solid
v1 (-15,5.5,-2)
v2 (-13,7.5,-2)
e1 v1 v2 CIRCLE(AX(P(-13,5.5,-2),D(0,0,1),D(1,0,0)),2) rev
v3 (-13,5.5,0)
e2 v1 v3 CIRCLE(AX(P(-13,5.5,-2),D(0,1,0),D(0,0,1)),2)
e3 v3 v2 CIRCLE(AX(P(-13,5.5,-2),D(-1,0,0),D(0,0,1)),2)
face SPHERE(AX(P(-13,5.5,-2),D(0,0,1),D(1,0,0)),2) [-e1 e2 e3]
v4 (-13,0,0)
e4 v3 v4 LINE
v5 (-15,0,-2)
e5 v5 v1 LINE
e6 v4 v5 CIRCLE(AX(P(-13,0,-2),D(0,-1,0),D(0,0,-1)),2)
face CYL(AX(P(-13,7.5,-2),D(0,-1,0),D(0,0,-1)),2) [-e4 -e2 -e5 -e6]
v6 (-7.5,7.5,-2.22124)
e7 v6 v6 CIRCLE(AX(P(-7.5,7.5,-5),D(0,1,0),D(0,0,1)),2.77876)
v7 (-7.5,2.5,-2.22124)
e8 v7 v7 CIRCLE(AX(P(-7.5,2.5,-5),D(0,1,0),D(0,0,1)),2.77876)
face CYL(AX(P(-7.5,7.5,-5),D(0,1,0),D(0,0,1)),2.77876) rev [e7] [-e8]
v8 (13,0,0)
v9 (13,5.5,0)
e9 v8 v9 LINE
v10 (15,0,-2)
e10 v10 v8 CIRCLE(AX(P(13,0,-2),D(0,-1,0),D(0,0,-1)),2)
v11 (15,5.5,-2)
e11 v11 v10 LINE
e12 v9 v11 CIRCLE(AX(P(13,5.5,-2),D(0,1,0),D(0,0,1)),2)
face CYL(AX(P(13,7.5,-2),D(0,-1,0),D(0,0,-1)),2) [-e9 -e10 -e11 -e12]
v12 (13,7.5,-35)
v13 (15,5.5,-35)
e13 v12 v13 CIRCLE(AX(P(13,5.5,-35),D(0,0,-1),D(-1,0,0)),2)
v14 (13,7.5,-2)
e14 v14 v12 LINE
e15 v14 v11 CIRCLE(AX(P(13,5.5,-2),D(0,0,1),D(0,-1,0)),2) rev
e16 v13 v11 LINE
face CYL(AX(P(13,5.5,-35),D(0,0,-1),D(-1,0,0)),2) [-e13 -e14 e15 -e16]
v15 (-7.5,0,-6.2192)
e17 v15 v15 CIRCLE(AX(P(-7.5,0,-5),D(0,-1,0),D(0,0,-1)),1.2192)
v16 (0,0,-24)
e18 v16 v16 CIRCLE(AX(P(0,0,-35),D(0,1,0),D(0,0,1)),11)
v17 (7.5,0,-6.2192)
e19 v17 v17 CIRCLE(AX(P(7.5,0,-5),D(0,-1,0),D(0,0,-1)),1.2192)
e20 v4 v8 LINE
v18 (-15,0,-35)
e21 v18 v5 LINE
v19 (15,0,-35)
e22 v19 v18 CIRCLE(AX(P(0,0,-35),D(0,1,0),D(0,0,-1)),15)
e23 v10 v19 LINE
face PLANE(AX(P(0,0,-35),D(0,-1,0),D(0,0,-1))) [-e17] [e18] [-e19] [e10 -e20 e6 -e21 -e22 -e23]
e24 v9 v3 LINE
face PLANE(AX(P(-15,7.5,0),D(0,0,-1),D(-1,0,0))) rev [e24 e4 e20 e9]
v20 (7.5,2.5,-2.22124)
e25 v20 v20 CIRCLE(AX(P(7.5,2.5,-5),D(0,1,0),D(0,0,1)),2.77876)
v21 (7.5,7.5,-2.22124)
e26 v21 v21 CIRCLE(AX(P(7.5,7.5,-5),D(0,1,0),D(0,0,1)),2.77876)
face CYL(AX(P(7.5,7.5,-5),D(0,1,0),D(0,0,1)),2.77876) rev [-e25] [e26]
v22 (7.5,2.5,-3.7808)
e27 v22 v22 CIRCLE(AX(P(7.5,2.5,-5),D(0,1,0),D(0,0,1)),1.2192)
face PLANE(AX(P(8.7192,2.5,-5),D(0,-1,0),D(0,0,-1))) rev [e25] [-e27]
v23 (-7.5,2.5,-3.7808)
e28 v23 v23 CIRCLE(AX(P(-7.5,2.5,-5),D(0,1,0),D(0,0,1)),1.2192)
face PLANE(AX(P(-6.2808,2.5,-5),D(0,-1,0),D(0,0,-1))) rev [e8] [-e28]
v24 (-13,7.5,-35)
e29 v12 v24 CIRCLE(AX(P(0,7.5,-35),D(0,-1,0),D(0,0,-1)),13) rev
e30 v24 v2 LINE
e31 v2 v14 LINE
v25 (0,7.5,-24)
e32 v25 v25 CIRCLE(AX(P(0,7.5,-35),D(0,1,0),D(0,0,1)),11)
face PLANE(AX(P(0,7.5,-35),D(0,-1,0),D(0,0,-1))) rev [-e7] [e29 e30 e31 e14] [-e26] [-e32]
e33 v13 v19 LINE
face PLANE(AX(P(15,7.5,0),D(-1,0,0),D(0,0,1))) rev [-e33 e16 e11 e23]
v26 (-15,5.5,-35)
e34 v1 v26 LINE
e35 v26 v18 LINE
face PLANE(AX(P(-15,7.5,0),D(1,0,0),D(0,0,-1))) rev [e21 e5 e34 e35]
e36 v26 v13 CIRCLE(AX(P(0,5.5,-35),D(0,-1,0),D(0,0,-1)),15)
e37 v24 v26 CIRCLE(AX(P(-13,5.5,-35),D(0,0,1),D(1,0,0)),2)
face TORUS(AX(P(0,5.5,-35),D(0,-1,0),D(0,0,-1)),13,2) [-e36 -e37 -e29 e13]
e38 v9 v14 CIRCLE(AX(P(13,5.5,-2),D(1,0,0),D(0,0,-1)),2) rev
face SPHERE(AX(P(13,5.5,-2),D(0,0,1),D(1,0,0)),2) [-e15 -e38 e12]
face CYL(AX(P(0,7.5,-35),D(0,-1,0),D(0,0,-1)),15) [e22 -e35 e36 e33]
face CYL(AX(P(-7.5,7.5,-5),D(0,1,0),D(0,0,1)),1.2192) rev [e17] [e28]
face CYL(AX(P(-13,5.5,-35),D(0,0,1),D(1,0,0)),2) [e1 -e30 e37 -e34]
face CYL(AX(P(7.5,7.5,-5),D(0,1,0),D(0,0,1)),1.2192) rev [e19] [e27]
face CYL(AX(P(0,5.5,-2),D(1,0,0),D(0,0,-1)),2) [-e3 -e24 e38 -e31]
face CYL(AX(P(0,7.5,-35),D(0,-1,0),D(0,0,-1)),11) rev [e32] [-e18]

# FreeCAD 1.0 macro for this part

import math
import FreeCAD as App
import Part
import Sketcher


def edges_at(feature, points):
    """Names of the edges that pass closest to the given points."""
    edges = feature.Shape.Edges
    near = lambda p: min(range(len(edges)), key=lambda i: edges[i].distToShape(Part.Vertex(*p))[0])
    return sorted({f"Edge{near(p) + 1}" for p in points})

doc = App.newDocument("Part")
body = doc.addObject("PartDesign::Body", "Body")

# Sketch on XZ plane
sketch1 = body.newObject("Sketcher::SketchObject", "Sketch")
sketch1.AttachmentSupport = (doc.getObject("XZ_Plane"), [""])
sketch1.MapMode = "FlatFace"
sketch1.addGeometry([
    Part.LineSegment(App.Vector(-15, 0, 0), App.Vector(15, 0, 0)),  # 0
    Part.LineSegment(App.Vector(15, 0, 0), App.Vector(15, -35, 0)),  # 1
    Part.ArcOfCircle(Part.Circle(App.Vector(0, -35, 0), App.Vector(0, 0, 1), 15), math.radians(180), math.radians(360)),  # 2
    Part.LineSegment(App.Vector(-15, -35, 0), App.Vector(-15, 0, 0)),  # 3
    Part.Circle(App.Vector(0, -35, 0), App.Vector(0, 0, 1), 11),  # 4
], False)
sketch1.addConstraint([
    Sketcher.Constraint("Coincident", 0, 2, 1, 1),
    Sketcher.Constraint("Tangent", 1, 2, 2, 2),
    Sketcher.Constraint("Tangent", 2, 1, 3, 1),
    Sketcher.Constraint("Coincident", 3, 2, 0, 1),
    Sketcher.Constraint("Horizontal", 0),
    Sketcher.Constraint("Vertical", 1),
    Sketcher.Constraint("Vertical", 3),
    Sketcher.Constraint("Coincident", 4, 3, 2, 3),
    Sketcher.Constraint("Symmetric", 0, 2, 3, 2, -1, 1),
    Sketcher.Constraint("Diameter", 4, 22.0),
    Sketcher.Constraint("Radius", 2, 15.0),
    Sketcher.Constraint("DistanceY", 1, 2, 1, 1, 35.0),
])
pad1 = body.newObject("PartDesign::Pad", "Pad")
pad1.Profile = sketch1
pad1.Length = 7.5
pad1.Reversed = True

# Sketch on XZ plane
sketch2 = body.newObject("Sketcher::SketchObject", "Sketch001")
sketch2.AttachmentSupport = (doc.getObject("XZ_Plane"), [""])
sketch2.MapMode = "FlatFace"
sketch2.AttachmentOffset = App.Placement(App.Vector(0, 0, -7.5), App.Rotation())
sketch2.addGeometry([
    Part.Circle(App.Vector(-7.5, -5, 0), App.Vector(0, 0, 1), 1.2),
    Part.Circle(App.Vector(7.5, -5, 0), App.Vector(0, 0, 1), 1.2),
], False)
sketch2.addConstraint([
    Sketcher.Constraint("Equal", 0, 1),
    Sketcher.Constraint("Symmetric", 0, 3, 1, 3, -2),
    Sketcher.Constraint("DistanceY", 0, 3, -1, 1, 5.0),
    Sketcher.Constraint("DistanceX", 0, 3, 1, 3, 15.0),
    Sketcher.Constraint("Diameter", 0, 2.4384),
])
doc.recompute()
hole = body.newObject("PartDesign::Hole", "Hole")
hole.Profile = sketch2
hole.ThreadType = "None"
hole.Diameter = 2.4384
hole.DepthType = "Dimension"
hole.Depth = 10
hole.DrillPoint = "Angled"
hole.DrillPointAngle = 118
hole.HoleCutType = "Counterbore"
hole.HoleCutDiameter = 5.55752
hole.HoleCutDepth = 5
hole.Reversed = True
doc.recompute()

fillet = body.newObject("PartDesign::Fillet", "Fillet")
fillet.Base = (hole, edges_at(hole, [
    (15, 7.5, -17.5),
    (0, 7.5, -50),
    (-15, 7.5, -17.5),
    (15, 3.75, 0),
    (-15, 3.75, 0),
    (0, 7.5, 0),
]))
fillet.Radius = 2

doc.recompute()
